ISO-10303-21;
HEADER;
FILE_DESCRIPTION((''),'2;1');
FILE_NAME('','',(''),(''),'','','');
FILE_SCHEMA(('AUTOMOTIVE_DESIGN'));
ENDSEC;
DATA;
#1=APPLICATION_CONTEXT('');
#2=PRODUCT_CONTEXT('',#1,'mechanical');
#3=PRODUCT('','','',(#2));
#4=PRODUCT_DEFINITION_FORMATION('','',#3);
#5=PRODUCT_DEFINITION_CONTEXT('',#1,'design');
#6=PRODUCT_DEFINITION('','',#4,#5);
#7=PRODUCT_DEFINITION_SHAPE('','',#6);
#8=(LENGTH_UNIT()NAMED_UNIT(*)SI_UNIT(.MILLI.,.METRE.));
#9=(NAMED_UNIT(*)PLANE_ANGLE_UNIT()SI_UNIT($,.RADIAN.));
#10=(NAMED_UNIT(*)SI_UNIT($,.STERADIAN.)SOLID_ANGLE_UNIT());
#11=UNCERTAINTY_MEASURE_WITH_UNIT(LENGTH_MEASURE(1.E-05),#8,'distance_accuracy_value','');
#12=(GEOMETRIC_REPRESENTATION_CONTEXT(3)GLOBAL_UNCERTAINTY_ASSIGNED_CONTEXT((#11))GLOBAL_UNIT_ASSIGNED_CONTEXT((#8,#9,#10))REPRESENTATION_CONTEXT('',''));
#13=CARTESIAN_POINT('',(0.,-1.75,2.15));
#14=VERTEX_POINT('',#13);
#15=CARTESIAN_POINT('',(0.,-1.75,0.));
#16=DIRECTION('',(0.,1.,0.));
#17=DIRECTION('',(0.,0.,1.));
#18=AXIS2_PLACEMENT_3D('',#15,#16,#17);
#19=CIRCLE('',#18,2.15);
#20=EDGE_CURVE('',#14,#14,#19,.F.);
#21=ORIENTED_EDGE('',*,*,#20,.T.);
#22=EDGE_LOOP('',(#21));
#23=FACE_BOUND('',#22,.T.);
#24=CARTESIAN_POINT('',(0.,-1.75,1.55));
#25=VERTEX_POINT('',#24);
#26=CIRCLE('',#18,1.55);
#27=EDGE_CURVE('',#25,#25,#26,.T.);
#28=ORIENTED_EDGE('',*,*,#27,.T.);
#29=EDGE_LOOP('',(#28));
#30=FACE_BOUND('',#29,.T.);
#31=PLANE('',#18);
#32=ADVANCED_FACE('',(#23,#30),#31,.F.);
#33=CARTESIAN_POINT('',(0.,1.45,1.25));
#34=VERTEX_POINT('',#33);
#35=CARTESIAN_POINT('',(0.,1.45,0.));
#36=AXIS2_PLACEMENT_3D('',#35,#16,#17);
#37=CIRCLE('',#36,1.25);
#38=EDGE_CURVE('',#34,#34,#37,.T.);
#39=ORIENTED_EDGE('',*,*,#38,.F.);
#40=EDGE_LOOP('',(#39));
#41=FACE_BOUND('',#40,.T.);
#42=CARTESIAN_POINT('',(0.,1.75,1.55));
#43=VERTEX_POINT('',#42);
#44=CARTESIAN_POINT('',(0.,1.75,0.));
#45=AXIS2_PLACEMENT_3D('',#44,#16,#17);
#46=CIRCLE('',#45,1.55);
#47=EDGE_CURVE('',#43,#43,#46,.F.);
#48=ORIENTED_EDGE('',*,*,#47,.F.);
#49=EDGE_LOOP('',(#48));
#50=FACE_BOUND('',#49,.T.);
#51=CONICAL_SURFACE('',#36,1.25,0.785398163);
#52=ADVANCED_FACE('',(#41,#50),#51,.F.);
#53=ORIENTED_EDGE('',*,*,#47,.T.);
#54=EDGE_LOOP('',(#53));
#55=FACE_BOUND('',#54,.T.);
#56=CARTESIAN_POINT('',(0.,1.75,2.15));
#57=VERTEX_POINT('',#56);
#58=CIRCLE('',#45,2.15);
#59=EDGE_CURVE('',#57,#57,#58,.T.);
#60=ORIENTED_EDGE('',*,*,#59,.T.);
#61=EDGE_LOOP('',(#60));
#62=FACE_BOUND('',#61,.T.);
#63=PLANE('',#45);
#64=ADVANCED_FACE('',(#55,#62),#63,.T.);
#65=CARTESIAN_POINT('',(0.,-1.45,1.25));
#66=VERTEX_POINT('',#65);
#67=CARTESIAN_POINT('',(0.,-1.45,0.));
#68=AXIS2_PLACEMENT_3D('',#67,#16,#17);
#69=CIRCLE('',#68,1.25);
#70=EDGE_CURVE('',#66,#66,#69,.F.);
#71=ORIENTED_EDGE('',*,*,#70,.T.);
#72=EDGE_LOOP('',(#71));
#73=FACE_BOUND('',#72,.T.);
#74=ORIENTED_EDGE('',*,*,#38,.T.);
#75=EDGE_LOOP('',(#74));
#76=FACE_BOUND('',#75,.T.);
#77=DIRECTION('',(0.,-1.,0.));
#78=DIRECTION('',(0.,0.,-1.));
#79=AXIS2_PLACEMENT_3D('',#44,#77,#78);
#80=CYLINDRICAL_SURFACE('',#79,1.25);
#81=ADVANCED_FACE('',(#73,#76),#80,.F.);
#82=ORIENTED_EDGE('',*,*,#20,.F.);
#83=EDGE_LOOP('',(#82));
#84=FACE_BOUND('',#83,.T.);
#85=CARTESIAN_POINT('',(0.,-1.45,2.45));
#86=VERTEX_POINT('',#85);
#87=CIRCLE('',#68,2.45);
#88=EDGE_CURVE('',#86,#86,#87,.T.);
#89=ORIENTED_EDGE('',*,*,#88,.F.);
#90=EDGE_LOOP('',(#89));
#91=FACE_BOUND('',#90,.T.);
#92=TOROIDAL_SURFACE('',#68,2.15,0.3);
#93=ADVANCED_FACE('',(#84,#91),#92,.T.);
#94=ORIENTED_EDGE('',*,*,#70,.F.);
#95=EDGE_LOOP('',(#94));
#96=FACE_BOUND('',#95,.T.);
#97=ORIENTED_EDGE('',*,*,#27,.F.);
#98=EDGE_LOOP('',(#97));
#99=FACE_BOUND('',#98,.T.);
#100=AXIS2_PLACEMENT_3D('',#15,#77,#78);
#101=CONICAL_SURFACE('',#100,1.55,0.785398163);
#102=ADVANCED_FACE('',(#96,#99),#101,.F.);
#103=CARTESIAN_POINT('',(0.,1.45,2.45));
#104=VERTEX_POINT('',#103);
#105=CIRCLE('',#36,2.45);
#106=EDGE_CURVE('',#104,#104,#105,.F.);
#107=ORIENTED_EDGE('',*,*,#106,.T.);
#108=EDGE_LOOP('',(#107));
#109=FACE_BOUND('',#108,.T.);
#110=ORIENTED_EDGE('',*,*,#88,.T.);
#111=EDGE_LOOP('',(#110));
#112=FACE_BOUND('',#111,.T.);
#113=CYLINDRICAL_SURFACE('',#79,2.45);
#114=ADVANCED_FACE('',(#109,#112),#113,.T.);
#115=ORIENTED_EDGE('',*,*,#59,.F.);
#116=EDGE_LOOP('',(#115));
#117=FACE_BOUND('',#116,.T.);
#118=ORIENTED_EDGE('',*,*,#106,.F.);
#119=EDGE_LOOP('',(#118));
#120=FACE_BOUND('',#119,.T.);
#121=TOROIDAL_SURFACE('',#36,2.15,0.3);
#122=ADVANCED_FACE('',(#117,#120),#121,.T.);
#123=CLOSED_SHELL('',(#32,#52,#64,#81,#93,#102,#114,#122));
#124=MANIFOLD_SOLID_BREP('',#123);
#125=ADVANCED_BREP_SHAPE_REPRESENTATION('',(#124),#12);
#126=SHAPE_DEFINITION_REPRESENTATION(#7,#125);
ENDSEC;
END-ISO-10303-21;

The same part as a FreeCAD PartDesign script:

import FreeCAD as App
import Part
import Sketcher
from FreeCAD import Vector
Q = App.Units.Quantity


def edges_at(feature, points):
    """Names of the edges that pass closest to the given points."""
    edges = feature.Shape.Edges
    near = lambda p: min(range(len(edges)), key=lambda i: edges[i].distToShape(Part.Vertex(*p))[0])
    return sorted({f"Edge{near(p) + 1}" for p in points})

doc = App.newDocument("Part")
body = doc.addObject("PartDesign::Body", "Body")

# Sketch on XZ plane
sketch1 = body.newObject("Sketcher::SketchObject", "Sketch")
sketch1.AttachmentSupport = (doc.getObject("XZ_Plane"), [""])
sketch1.MapMode = "FlatFace"
sketch1.addGeometry([
    Part.Circle(Vector(0, 0, 0), Vector(0, 0, 1), 2.5),
    Part.Circle(Vector(0, 0, 0), Vector(0, 0, 1), 1.2),
], False)
sketch1.addConstraint([
    Sketcher.Constraint("Coincident", 0, 3, -1, 1),
    Sketcher.Constraint("Coincident", 1, 3, -1, 1),
    Sketcher.Constraint("Diameter", 0, Q("4.9 mm")),
    Sketcher.Constraint("Diameter", 1, Q("2.5 mm")),
])
pad1 = body.newObject("PartDesign::Pad", "Pad")
pad1.Profile = sketch1
pad1.Length = 3.5
pad1.Midplane = True
doc.recompute()

chamfer = body.newObject("PartDesign::Chamfer", "Chamfer")
chamfer.Base = (pad1, edges_at(pad1, [(0, -1.75, -1.25), (0, 1.75, -1.25)]))
chamfer.Size = 0.3
doc.recompute()

fillet = body.newObject("PartDesign::Fillet", "Fillet")
fillet.Base = (chamfer, edges_at(chamfer, [(0, -1.75, -2.45), (0, 1.75, -2.45)]))
fillet.Radius = 0.3

doc.recompute()
